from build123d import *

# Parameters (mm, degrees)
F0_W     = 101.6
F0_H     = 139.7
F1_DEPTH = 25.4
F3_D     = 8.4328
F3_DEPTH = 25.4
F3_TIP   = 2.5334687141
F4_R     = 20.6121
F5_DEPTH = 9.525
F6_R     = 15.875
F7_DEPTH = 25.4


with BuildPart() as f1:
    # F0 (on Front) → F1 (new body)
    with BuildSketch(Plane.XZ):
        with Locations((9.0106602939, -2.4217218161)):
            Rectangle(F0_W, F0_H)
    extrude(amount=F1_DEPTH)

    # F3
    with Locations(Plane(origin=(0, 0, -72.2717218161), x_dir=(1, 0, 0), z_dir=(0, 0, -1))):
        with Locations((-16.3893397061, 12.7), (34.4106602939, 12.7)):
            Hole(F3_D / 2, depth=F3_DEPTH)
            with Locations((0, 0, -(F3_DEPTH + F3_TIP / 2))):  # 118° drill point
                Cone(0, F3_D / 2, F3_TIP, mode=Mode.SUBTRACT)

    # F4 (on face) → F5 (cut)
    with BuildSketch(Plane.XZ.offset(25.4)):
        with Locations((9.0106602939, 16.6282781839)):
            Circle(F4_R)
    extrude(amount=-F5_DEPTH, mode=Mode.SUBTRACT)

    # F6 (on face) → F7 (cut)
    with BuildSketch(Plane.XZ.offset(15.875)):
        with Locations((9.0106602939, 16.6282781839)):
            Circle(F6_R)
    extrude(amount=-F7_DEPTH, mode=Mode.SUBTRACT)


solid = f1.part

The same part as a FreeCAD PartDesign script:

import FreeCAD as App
import Part
import Sketcher
from FreeCAD import Vector
Q = App.Units.Quantity


def add_polygon(sketch, points):
    """Adds a closed chain of lines whose ends are joined by coincident constraints."""
    first, n = sketch.GeometryCount, len(points)
    for a, b in zip(points, points[1:] + points[:1]):
        sketch.addGeometry(Part.LineSegment(App.Vector(*a, 0), App.Vector(*b, 0)), False)
    for i in range(n):
        sketch.addConstraint(Sketcher.Constraint("Coincident", first + i, 2, first + (i + 1) % n, 1))

doc = App.newDocument("Part")
body = doc.addObject("PartDesign::Body", "Body")

sketch1 = body.newObject("Sketcher::SketchObject", "Sketch")
sketch1.AttachmentSupport = (doc.getObject("XZ_Plane"), [""])
sketch1.MapMode = "FlatFace"
add_polygon(sketch1, [(-42, 67), (-42, -72), (60, -72), (60, 67)])
sketch1.addConstraint([
    Sketcher.Constraint("Vertical", 0),
    Sketcher.Constraint("Horizontal", 1),
    Sketcher.Constraint("Vertical", 2),
    Sketcher.Constraint("Horizontal", 3),
    Sketcher.Constraint("DistanceX", 1, 1, 1, 2, Q("4 in")),
    Sketcher.Constraint("DistanceY", 0, 2, 0, 1, Q("5.5 in")),
    Sketcher.Constraint("DistanceX", 0, 2, -1, 1, 41.78934),
    Sketcher.Constraint("DistanceY", 0, 2, -1, 1, 72.271722),
])
pad1 = body.newObject("PartDesign::Pad", "Pad")
pad1.Profile = sketch1
pad1.Length = Q("1 in")

sketch2 = body.newObject("Sketcher::SketchObject", "Sketch001")
sketch2.AttachmentSupport = (doc.getObject("XY_Plane"), [""])
sketch2.MapMode = "FlatFace"
sketch2.AttachmentOffset = App.Placement(Vector(0, 0, -72.271722), App.Rotation())
sketch2.addGeometry([
    Part.Circle(Vector(-16.4, -12.7, 0), Vector(0, 0, 1), 4.2),
    Part.Circle(Vector(34.4, -12.7, 0), Vector(0, 0, 1), 4.2),
], False)
sketch2.addConstraint([
    Sketcher.Constraint("Equal", 0, 1),
    Sketcher.Constraint("Horizontal", 0, 3, 1, 3),
    Sketcher.Constraint("Diameter", 0, Q("0.332 in")),
    Sketcher.Constraint("DistanceX", 0, 3, 1, 3, Q("2 in")),
    Sketcher.Constraint("DistanceY", 0, 3, -1, 1, Q("0.5 in")),
    Sketcher.Constraint("DistanceX", 0, 3, -1, 1, 16.38934),
])
doc.recompute()
hole = body.newObject("PartDesign::Hole", "Hole")
hole.Profile = sketch2
hole.ThreadType = "None"
hole.Diameter = Q("0.332 in")
hole.DepthType = "Dimension"
hole.Depth = Q("1 in")
hole.DrillPoint = "Angled"
hole.DrillPointAngle = 118
hole.Reversed = True

sketch3 = body.newObject("Sketcher::SketchObject", "Sketch002")
sketch3.AttachmentSupport = (doc.getObject("XZ_Plane"), [""])
sketch3.MapMode = "FlatFace"
sketch3.AttachmentOffset = App.Placement(Vector(0, 0, 1 * 25.4), App.Rotation())
sketch3.addGeometry(Part.Circle(Vector(9, 17, 0), Vector(0, 0, 1), 21), False)
sketch3.addConstraint([
    Sketcher.Constraint("Diameter", 0, Q("1.623 in")),
    Sketcher.Constraint("DistanceX", -1, 1, 0, 3, 9.01066),
    Sketcher.Constraint("DistanceY", -1, 1, 0, 3, 16.628278),
])
pocket1 = body.newObject("PartDesign::Pocket", "Pocket")
pocket1.Profile = sketch3
pocket1.Length = Q("0.375 in")

sketch4 = body.newObject("Sketcher::SketchObject", "Sketch003")
sketch4.AttachmentSupport = (doc.getObject("XZ_Plane"), [""])
sketch4.MapMode = "FlatFace"
sketch4.AttachmentOffset = App.Placement(Vector(0, 0, 0.625 * 25.4), App.Rotation())
sketch4.addGeometry(Part.Circle(Vector(9, 17, 0), Vector(0, 0, 1), 16), False)
sketch4.addConstraint([
    Sketcher.Constraint("Diameter", 0, Q("1.25 in")),
    Sketcher.Constraint("DistanceX", -1, 1, 0, 3, 9.01066),
    Sketcher.Constraint("DistanceY", -1, 1, 0, 3, 16.628278),
])
pocket2 = body.newObject("PartDesign::Pocket", "Pocket001")
pocket2.Profile = sketch4
pocket2.Length = Q("1 in")

doc.recompute()
